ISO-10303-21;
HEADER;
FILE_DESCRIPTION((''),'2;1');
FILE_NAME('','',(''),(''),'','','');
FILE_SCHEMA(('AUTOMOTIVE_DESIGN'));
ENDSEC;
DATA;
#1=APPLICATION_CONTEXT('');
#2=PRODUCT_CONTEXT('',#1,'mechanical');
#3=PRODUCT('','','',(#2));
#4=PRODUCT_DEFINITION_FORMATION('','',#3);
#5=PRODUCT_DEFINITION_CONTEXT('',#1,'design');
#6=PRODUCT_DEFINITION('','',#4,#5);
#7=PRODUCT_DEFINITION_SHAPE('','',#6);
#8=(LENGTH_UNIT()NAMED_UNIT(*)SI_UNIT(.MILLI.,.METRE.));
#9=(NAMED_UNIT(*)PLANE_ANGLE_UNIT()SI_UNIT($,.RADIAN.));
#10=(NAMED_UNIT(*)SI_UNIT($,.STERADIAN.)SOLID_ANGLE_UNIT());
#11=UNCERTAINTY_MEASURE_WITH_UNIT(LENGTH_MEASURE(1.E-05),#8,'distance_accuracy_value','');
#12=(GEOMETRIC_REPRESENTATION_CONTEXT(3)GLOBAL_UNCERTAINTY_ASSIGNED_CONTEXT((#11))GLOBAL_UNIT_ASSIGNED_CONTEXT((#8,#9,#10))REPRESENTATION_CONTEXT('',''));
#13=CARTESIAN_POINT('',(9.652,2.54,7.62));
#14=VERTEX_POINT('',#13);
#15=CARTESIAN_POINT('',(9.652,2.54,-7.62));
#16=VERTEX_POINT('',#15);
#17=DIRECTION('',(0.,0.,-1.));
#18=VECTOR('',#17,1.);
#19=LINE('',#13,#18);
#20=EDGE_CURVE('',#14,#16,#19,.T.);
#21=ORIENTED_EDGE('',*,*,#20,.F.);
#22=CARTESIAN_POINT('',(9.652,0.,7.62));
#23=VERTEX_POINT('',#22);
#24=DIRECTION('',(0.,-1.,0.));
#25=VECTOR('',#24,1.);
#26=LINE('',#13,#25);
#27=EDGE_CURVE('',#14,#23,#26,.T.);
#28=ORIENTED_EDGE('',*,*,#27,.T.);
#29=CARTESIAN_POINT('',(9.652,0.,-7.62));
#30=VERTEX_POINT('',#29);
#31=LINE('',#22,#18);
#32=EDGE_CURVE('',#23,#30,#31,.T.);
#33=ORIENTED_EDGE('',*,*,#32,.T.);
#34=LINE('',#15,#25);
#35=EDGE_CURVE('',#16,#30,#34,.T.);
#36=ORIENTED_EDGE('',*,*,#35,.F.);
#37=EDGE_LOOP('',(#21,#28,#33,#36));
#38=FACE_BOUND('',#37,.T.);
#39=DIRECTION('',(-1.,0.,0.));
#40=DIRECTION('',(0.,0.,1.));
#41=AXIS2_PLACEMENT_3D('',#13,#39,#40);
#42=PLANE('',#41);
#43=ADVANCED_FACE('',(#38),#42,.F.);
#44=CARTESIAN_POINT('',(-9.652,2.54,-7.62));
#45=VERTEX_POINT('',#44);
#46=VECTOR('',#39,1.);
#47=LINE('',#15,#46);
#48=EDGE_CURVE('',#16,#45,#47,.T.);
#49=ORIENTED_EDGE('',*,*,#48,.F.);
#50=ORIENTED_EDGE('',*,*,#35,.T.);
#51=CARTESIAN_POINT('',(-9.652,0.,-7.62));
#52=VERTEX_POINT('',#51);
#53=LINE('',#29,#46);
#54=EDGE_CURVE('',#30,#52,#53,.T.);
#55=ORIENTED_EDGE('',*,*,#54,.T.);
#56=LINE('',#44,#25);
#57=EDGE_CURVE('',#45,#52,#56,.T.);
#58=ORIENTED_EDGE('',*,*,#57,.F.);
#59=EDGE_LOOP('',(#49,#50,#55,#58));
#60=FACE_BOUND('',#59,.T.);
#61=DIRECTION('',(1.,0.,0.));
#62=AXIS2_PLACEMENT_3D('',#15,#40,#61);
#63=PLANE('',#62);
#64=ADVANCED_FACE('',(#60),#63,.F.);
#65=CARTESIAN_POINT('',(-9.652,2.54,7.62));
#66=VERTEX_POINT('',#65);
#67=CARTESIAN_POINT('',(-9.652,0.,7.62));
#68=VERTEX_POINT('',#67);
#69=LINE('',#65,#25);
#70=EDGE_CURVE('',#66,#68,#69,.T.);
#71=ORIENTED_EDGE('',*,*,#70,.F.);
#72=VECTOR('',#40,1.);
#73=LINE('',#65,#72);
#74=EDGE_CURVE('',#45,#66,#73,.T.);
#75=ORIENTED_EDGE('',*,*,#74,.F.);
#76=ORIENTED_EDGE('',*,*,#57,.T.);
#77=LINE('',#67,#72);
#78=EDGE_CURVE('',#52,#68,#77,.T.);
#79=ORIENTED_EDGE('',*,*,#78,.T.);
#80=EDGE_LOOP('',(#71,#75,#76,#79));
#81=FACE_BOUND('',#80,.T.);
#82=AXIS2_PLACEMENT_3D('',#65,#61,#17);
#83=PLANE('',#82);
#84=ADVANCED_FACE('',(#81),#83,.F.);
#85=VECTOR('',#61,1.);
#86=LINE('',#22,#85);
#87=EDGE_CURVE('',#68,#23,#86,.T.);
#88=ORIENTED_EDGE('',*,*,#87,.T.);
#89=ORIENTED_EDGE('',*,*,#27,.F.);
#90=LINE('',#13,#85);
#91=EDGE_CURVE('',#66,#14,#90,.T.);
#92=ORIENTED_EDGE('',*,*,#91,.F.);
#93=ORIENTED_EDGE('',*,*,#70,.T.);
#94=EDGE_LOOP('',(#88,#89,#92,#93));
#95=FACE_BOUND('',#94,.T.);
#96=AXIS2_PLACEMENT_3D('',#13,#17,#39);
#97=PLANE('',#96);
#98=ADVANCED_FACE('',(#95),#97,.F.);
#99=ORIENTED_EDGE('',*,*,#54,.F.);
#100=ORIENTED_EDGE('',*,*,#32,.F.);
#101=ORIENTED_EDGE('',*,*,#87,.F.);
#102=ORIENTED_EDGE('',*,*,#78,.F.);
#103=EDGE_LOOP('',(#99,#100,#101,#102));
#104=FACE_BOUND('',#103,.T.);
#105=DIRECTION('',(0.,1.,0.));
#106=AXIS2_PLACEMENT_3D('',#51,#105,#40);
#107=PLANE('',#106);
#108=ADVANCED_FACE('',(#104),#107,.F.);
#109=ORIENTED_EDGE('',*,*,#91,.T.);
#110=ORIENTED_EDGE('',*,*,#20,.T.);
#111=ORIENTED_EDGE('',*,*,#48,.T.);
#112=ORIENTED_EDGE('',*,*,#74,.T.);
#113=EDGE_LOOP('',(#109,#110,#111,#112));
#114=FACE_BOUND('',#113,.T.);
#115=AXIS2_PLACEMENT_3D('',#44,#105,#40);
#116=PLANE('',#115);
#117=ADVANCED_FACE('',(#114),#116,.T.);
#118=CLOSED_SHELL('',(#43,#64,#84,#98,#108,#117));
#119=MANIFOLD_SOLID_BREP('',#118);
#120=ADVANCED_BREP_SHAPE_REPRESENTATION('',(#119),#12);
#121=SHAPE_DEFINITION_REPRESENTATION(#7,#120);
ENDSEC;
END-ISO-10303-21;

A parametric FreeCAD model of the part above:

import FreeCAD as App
import Part
import Sketcher
Q = App.Units.Quantity


def add_polygon(sketch, points):
    """Adds a closed chain of lines whose ends are joined by coincident constraints."""
    first, n = sketch.GeometryCount, len(points)
    for a, b in zip(points, points[1:] + points[:1]):
        sketch.addGeometry(Part.LineSegment(App.Vector(*a, 0), App.Vector(*b, 0)), False)
    for i in range(n):
        sketch.addConstraint(Sketcher.Constraint("Coincident", first + i, 2, first + (i + 1) % n, 1))

doc = App.newDocument("Part")
params = doc.addObject("Spreadsheet::Sheet", "Params")
for row, (alias, value) in enumerate([
    ("sketch1_height", "0.6 in"),
    ("sketch1_width", "0.76 in"),
    ("pad1_length", "0.1 in"),
], start=1):
    params.set(f"A{row}", alias)
    params.set(f"B{row}", "=" + value)
    params.setAlias(f"B{row}", alias)

body = doc.addObject("PartDesign::Body", "Body")

# Sketch on XZ plane
sketch1 = body.newObject("Sketcher::SketchObject", "Sketch")
sketch1.AttachmentSupport = (doc.getObject("XZ_Plane"), [""])
sketch1.MapMode = "FlatFace"
add_polygon(sketch1, [(-10, -8), (-10, 8), (10, 8), (10, -8)])  # lines 0-3
sketch1.addConstraint([
    Sketcher.Constraint("Vertical", 0),
    Sketcher.Constraint("Horizontal", 1),
    Sketcher.Constraint("Vertical", 2),
    Sketcher.Constraint("Horizontal", 3),
    Sketcher.Constraint("Symmetric", 0, 2, 2, 2, -1, 1),
    Sketcher.Constraint("DistanceY", 0, 1, 0, 2, Q("0.6 in")),
    Sketcher.Constraint("DistanceX", 1, 1, 1, 2, Q("0.76 in")),
])
sketch1.setExpression("Constraints[9]", "Params.sketch1_height")
sketch1.setExpression("Constraints[10]", "Params.sketch1_width")
pad1 = body.newObject("PartDesign::Pad", "Pad")
pad1.Profile = sketch1
pad1.setExpression("Length", "Params.pad1_length")
pad1.Reversed = True

doc.recompute()
